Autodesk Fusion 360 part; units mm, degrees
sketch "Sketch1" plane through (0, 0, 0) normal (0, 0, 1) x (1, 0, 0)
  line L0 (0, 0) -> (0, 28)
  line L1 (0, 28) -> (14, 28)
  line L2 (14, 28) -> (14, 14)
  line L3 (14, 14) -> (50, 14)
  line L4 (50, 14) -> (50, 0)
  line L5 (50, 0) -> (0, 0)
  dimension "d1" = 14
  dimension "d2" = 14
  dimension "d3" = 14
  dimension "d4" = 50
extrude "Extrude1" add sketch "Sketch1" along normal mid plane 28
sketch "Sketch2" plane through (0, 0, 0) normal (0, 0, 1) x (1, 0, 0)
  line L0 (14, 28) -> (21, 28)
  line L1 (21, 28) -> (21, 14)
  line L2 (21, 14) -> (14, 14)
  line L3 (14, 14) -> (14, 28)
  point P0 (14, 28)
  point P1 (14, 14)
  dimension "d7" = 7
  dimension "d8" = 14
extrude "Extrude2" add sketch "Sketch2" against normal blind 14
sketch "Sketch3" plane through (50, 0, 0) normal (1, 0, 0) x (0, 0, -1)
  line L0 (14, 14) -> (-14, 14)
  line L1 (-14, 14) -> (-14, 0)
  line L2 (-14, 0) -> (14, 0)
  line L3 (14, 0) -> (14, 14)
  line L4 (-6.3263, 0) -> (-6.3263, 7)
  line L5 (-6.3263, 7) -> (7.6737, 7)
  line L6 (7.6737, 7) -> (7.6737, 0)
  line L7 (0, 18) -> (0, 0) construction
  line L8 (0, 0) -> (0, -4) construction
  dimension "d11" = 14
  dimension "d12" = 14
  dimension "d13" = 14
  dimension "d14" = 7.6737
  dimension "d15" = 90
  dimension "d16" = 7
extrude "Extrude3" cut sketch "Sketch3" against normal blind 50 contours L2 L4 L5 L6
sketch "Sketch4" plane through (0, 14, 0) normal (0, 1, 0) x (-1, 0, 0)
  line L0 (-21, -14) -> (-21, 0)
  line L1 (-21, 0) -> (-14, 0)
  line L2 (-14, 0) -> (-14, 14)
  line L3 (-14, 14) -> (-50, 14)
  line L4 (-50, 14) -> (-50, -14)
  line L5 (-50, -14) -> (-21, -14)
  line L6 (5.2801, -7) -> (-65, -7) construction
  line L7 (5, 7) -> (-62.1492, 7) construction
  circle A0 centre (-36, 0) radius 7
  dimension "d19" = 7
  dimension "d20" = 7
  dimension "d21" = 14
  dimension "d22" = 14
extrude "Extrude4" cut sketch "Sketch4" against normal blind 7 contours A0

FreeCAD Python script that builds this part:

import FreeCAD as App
import Part
import Sketcher
from FreeCAD import Vector

doc = App.newDocument("Part")
body = doc.addObject("PartDesign::Body", "Body")

# Sketch on XY plane
sketch1 = body.newObject("Sketcher::SketchObject", "Sketch")
sketch1.AttachmentSupport = (doc.getObject("XY_Plane"), [""])
sketch1.MapMode = "FlatFace"
sketch1.addGeometry([
    Part.LineSegment(Vector(0, 28, 0), Vector(0, 0, 0)),  # 0
    Part.LineSegment(Vector(0, 0, 0), Vector(50, 0, 0)),  # 1
    Part.LineSegment(Vector(50, 0, 0), Vector(50, 14, 0)),  # 2
    Part.LineSegment(Vector(50, 14, 0), Vector(14, 14, 0)),  # 3
    Part.LineSegment(Vector(14, 14, 0), Vector(14, 28, 0)),  # 4
    Part.LineSegment(Vector(14, 28, 0), Vector(0, 28, 0)),  # 5
], False)
sketch1.addConstraint([
    Sketcher.Constraint("Coincident", 0, 2, 1, 1),
    Sketcher.Constraint("Coincident", 1, 2, 2, 1),
    Sketcher.Constraint("Coincident", 2, 2, 3, 1),
    Sketcher.Constraint("Coincident", 3, 2, 4, 1),
    Sketcher.Constraint("Coincident", 4, 2, 5, 1),
    Sketcher.Constraint("Coincident", 5, 2, 0, 1),
    Sketcher.Constraint("Vertical", 0),
    Sketcher.Constraint("Horizontal", 1),
    Sketcher.Constraint("Vertical", 2),
    Sketcher.Constraint("Horizontal", 3),
    Sketcher.Constraint("Vertical", 4),
    Sketcher.Constraint("Horizontal", 5),
    Sketcher.Constraint("Coincident", 0, 2, -1, 1),
    Sketcher.Constraint("Equal", 5, 2),
    Sketcher.Constraint("Equal", 2, 4),
    Sketcher.Constraint("DistanceX", 1, 1, 1, 2, 50.0),
    Sketcher.Constraint("DistanceX", 5, 2, 5, 1, 14.0),
])
pad1 = body.newObject("PartDesign::Pad", "Pad")
pad1.Profile = sketch1
pad1.Length = 28
pad1.Midplane = True

# Sketch on XY plane
sketch2 = body.newObject("Sketcher::SketchObject", "Sketch001")
sketch2.AttachmentSupport = (doc.getObject("XY_Plane"), [""])
sketch2.MapMode = "FlatFace"
sketch2.addGeometry([
    Part.LineSegment(Vector(21, 28, 0), Vector(14, 28, 0)),
    Part.LineSegment(Vector(14, 28, 0), Vector(14, 14, 0)),
    Part.LineSegment(Vector(14, 14, 0), Vector(21, 14, 0)),
    Part.LineSegment(Vector(21, 14, 0), Vector(21, 28, 0)),
], False)
sketch2.addConstraint([
    Sketcher.Constraint("Coincident", 0, 2, 1, 1),
    Sketcher.Constraint("Coincident", 1, 2, 2, 1),
    Sketcher.Constraint("Coincident", 2, 2, 3, 1),
    Sketcher.Constraint("Coincident", 3, 2, 0, 1),
    Sketcher.Constraint("Horizontal", 0),
    Sketcher.Constraint("Vertical", 1),
    Sketcher.Constraint("Horizontal", 2),
    Sketcher.Constraint("Vertical", 3),
    Sketcher.Constraint("DistanceX", 0, 2, 0, 1, 7.0),
    Sketcher.Constraint("DistanceY", 1, 2, 1, 1, 14.0),
    Sketcher.Constraint("DistanceX", -1, 1, 0, 2, 14.0),
    Sketcher.Constraint("DistanceY", -1, 1, 1, 2, 14.0),
])
pad2 = body.newObject("PartDesign::Pad", "Pad001")
pad2.Profile = sketch2
pad2.Length = 14
pad2.Reversed = True

# Sketch on YZ plane
sketch3 = body.newObject("Sketcher::SketchObject", "Sketch002")
sketch3.AttachmentSupport = (doc.getObject("YZ_Plane"), [""])
sketch3.MapMode = "FlatFace"
sketch3.AttachmentOffset = App.Placement(Vector(0, 0, 50), App.Rotation())
sketch3.addGeometry([
    Part.LineSegment(Vector(0, 6.3263, 0), Vector(0, -7.6737, 0)),
    Part.LineSegment(Vector(0, -7.6737, 0), Vector(7, -7.6737, 0)),
    Part.LineSegment(Vector(7, -7.6737, 0), Vector(7, 6.3263, 0)),
    Part.LineSegment(Vector(7, 6.3263, 0), Vector(0, 6.3263, 0)),
], False)
sketch3.addConstraint([
    Sketcher.Constraint("Coincident", 0, 2, 1, 1),
    Sketcher.Constraint("Coincident", 1, 2, 2, 1),
    Sketcher.Constraint("Coincident", 2, 2, 3, 1),
    Sketcher.Constraint("Coincident", 3, 2, 0, 1),
    Sketcher.Constraint("Vertical", 0),
    Sketcher.Constraint("Horizontal", 1),
    Sketcher.Constraint("Vertical", 2),
    Sketcher.Constraint("Horizontal", 3),
    Sketcher.Constraint("PointOnObject", 0, 2, -2),
    Sketcher.Constraint("DistanceX", 1, 1, 1, 2, 7.0),
    Sketcher.Constraint("DistanceY", 0, 2, 0, 1, 14.0),
    Sketcher.Constraint("DistanceY", 0, 2, -1, 1, 7.6737),
])
pocket1 = body.newObject("PartDesign::Pocket", "Pocket")
pocket1.Profile = sketch3
pocket1.Length = 50

# Sketch on XZ plane
sketch4 = body.newObject("Sketcher::SketchObject", "Sketch003")
sketch4.AttachmentSupport = (doc.getObject("XZ_Plane"), [""])
sketch4.MapMode = "FlatFace"
sketch4.AttachmentOffset = App.Placement(Vector(0, 0, -14), App.Rotation())
sketch4.addGeometry(Part.Circle(Vector(36, 0, 0), Vector(0, 0, 1), 7), False)
sketch4.addConstraint([
    Sketcher.Constraint("PointOnObject", 0, 3, -1),
    Sketcher.Constraint("Diameter", 0, 14.0),
    Sketcher.Constraint("DistanceX", -1, 1, 0, 3, 36.0),
])
pocket2 = body.newObject("PartDesign::Pocket", "Pocket001")
pocket2.Profile = sketch4
pocket2.Length = 7
pocket2.Reversed = True

doc.recompute()
